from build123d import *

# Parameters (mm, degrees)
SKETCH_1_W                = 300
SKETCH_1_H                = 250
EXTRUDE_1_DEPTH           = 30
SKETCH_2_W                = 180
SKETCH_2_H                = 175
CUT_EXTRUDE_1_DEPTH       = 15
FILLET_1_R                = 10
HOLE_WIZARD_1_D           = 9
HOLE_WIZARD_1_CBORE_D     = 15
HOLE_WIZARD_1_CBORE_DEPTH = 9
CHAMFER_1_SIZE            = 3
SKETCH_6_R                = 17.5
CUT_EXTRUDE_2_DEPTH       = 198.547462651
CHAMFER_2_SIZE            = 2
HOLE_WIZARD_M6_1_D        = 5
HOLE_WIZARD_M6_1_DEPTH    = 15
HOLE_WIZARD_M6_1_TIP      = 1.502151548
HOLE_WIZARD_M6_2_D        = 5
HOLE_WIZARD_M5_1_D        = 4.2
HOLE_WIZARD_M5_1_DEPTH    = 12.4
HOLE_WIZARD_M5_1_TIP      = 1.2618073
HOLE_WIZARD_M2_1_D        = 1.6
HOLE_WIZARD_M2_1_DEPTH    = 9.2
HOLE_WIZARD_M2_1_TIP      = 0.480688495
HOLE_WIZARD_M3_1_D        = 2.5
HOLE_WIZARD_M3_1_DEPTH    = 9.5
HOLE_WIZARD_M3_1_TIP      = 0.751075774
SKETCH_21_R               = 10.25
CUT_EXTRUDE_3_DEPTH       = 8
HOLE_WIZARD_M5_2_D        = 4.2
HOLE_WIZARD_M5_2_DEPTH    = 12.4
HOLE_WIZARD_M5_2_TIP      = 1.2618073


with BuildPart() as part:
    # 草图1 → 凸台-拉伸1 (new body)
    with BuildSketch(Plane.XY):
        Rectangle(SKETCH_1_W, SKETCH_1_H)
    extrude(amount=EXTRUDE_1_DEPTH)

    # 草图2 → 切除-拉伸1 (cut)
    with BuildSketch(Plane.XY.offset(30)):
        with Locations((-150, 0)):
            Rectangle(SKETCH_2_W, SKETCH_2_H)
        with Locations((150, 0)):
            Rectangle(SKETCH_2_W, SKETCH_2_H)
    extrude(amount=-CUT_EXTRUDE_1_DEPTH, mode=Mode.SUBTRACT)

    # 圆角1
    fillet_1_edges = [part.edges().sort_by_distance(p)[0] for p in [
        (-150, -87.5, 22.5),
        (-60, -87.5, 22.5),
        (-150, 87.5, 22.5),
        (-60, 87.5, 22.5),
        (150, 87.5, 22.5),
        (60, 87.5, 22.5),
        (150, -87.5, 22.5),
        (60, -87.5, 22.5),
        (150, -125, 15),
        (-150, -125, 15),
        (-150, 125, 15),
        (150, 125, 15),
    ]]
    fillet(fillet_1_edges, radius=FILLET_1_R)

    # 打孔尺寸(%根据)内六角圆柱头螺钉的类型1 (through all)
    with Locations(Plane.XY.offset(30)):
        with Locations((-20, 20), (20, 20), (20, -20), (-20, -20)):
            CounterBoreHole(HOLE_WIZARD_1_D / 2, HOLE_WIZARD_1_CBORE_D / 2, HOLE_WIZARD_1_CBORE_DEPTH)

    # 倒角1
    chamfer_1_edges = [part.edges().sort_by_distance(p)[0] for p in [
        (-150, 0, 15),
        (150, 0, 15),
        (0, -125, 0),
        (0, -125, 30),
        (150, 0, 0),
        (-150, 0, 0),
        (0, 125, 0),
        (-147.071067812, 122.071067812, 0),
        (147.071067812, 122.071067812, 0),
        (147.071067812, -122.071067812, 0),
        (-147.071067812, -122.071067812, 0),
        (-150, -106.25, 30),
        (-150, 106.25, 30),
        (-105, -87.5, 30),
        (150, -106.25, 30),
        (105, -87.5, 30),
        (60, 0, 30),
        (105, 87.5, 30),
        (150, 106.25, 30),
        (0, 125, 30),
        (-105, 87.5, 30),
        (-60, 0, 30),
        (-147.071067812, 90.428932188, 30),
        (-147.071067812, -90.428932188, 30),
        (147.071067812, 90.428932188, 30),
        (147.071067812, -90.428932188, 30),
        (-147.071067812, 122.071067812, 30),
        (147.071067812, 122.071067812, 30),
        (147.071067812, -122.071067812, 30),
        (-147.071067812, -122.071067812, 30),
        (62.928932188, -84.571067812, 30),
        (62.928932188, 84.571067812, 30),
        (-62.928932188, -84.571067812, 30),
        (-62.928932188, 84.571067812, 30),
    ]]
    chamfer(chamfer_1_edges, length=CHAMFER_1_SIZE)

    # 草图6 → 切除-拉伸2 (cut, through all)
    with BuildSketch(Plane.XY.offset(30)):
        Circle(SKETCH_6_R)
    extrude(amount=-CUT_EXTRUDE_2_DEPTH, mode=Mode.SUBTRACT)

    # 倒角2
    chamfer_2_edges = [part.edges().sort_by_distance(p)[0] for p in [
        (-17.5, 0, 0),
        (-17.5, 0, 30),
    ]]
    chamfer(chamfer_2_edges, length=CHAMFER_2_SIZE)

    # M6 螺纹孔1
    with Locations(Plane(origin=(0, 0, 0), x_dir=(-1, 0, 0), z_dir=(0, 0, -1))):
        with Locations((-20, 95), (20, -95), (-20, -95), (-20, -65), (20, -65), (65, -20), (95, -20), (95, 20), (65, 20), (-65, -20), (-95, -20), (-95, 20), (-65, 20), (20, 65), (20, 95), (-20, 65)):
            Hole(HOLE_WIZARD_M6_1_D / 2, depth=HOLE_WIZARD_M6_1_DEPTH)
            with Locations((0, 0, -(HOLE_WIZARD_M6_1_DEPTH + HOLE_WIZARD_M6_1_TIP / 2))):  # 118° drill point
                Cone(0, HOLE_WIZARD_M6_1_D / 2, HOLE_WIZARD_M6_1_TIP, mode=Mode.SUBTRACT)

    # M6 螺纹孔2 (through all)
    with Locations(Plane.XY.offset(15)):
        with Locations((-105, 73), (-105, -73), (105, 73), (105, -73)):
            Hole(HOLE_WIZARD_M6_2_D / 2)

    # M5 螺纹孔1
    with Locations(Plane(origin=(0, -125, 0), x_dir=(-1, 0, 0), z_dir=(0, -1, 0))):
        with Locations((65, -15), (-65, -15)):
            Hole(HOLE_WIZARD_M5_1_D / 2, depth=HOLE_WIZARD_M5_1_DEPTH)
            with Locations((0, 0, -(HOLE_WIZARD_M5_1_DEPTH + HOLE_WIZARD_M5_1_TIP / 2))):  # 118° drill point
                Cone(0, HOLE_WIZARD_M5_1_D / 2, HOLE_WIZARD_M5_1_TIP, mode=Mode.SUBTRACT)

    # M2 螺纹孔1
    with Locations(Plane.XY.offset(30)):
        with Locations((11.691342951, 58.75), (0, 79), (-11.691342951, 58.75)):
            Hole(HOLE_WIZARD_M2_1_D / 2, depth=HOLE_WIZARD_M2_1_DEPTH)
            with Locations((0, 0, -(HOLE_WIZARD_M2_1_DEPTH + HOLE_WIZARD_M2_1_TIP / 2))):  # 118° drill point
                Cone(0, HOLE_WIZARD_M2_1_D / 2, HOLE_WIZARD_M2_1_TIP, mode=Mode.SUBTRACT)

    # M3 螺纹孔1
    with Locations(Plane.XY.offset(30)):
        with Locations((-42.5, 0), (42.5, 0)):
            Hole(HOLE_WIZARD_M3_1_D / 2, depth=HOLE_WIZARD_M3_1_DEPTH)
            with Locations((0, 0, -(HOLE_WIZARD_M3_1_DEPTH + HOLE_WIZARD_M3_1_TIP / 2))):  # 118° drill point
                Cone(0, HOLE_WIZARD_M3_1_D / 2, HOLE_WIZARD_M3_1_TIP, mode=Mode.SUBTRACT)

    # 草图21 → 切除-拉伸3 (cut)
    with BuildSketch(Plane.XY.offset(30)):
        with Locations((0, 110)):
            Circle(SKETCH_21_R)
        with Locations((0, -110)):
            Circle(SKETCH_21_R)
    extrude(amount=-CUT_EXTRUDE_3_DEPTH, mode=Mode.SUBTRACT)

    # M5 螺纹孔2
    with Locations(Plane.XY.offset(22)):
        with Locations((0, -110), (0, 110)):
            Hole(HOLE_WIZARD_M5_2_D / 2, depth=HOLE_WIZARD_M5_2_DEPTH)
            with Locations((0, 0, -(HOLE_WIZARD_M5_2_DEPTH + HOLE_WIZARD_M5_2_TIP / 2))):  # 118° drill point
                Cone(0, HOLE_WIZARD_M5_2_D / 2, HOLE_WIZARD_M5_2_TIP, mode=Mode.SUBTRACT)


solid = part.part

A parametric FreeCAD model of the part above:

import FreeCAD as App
import Part
import Sketcher
Q = App.Units.Quantity


def edges_at(feature, points):
    """Names of the edges that pass closest to the given points."""
    edges = feature.Shape.Edges
    near = lambda p: min(range(len(edges)), key=lambda i: edges[i].distToShape(Part.Vertex(*p))[0])
    return sorted({f"Edge{near(p) + 1}" for p in points})

doc = App.newDocument("Part")
params = doc.addObject("Spreadsheet::Sheet", "Params")
for row, (alias, value) in enumerate([
    ("sketch1_width", "300 mm"),
    ("sketch1_height", "250 mm"),
    ("pad1_length", "30 mm"),
    ("sketch2_width", "180 mm"),
    ("sketch2_height", "175 mm"),
    ("pocket1_length", "15 mm"),
    ("fillet_radius", "10 mm"),
    ("sketch3_diameter", "9 mm"),
    ("hole_diameter", "9 mm"),
    ("hole_cbore_diameter", "15 mm"),
    ("hole_cbore_depth", "9 mm"),
    ("chamfer_size", "3 mm"),
    ("sketch4_diameter", "35 mm"),
    ("chamfer2_size", "2 mm"),
    ("sketch5_diameter", "5 mm"),
    ("hole2_diameter", "5 mm"),
    ("hole2_depth", "15 mm"),
    ("sketch6_diameter", "5 mm"),
    ("hole3_diameter", "5 mm"),
    ("sketch7_diameter", "4.2 mm"),
    ("hole4_diameter", "4.2 mm"),
    ("hole4_depth", "12.4 mm"),
    ("sketch8_diameter", "1.6 mm"),
    ("hole5_diameter", "1.6 mm"),
    ("hole5_depth", "9.2 mm"),
    ("sketch9_diameter", "2.5 mm"),
    ("hole6_diameter", "2.5 mm"),
    ("hole6_depth", "9.5 mm"),
    ("sketch10_diameter", "20.5 mm"),
    ("pocket3_length", "8 mm"),
    ("sketch11_diameter", "4.2 mm"),
    ("hole7_diameter", "4.2 mm"),
    ("hole7_depth", "12.4 mm"),
], start=1):
    params.set(f"A{row}", alias)
    params.set(f"B{row}", "=" + value)
    params.setAlias(f"B{row}", alias)

body = doc.addObject("PartDesign::Body", "Body")

# Sketch on XY plane
sketch1 = body.newObject("Sketcher::SketchObject", "Sketch")
sketch1.AttachmentSupport = (doc.getObject("XY_Plane"), [""])
sketch1.MapMode = "FlatFace"
sketch1.addGeometry(Part.LineSegment(App.Vector(-150, 125, 0), App.Vector(-150, -125, 0)), False)
sketch1.addGeometry(Part.LineSegment(App.Vector(-150, -125, 0), App.Vector(150, -125, 0)), False)
sketch1.addGeometry(Part.LineSegment(App.Vector(150, -125, 0), App.Vector(150, 125, 0)), False)
sketch1.addGeometry(Part.LineSegment(App.Vector(150, 125, 0), App.Vector(-150, 125, 0)), False)
sketch1.addConstraint(Sketcher.Constraint("Coincident", 0, 2, 1, 1))
sketch1.addConstraint(Sketcher.Constraint("Coincident", 1, 2, 2, 1))
sketch1.addConstraint(Sketcher.Constraint("Coincident", 2, 2, 3, 1))
sketch1.addConstraint(Sketcher.Constraint("Coincident", 3, 2, 0, 1))
sketch1.addConstraint(Sketcher.Constraint("Vertical", 0))
sketch1.addConstraint(Sketcher.Constraint("Horizontal", 1))
sketch1.addConstraint(Sketcher.Constraint("Vertical", 2))
sketch1.addConstraint(Sketcher.Constraint("Horizontal", 3))
sketch1.addConstraint(Sketcher.Constraint("Symmetric", 0, 2, 2, 2, -1, 1))
sketch1.addConstraint(Sketcher.Constraint("DistanceX", 1, 1, 1, 2, Q("300 mm")))
sketch1.addConstraint(Sketcher.Constraint("DistanceY", 0, 2, 0, 1, Q("250 mm")))
sketch1.setExpression("Constraints[9]", "Params.sketch1_width")
sketch1.setExpression("Constraints[10]", "Params.sketch1_height")
pad1 = body.newObject("PartDesign::Pad", "Pad")
pad1.Profile = sketch1
pad1.setExpression("Length", "Params.pad1_length")

# Sketch on XY plane
sketch2 = body.newObject("Sketcher::SketchObject", "Sketch001")
sketch2.AttachmentSupport = (doc.getObject("XY_Plane"), [""])
sketch2.MapMode = "FlatFace"
sketch2.AttachmentOffset = App.Placement(App.Vector(0, 0, 30), App.Rotation())
sketch2.addGeometry(Part.LineSegment(App.Vector(-240, 88, 0), App.Vector(-240, -88, 0)), False)
sketch2.addGeometry(Part.LineSegment(App.Vector(-240, -88, 0), App.Vector(-60, -88, 0)), False)
sketch2.addGeometry(Part.LineSegment(App.Vector(-60, -88, 0), App.Vector(-60, 88, 0)), False)
sketch2.addGeometry(Part.LineSegment(App.Vector(-60, 88, 0), App.Vector(-240, 88, 0)), False)
sketch2.addGeometry(Part.LineSegment(App.Vector(60, 88, 0), App.Vector(60, -88, 0)), False)
sketch2.addGeometry(Part.LineSegment(App.Vector(60, -88, 0), App.Vector(240, -88, 0)), False)
sketch2.addGeometry(Part.LineSegment(App.Vector(240, -88, 0), App.Vector(240, 88, 0)), False)
sketch2.addGeometry(Part.LineSegment(App.Vector(240, 88, 0), App.Vector(60, 88, 0)), False)
sketch2.addConstraint(Sketcher.Constraint("Coincident", 0, 2, 1, 1))
sketch2.addConstraint(Sketcher.Constraint("Coincident", 1, 2, 2, 1))
sketch2.addConstraint(Sketcher.Constraint("Coincident", 2, 2, 3, 1))
sketch2.addConstraint(Sketcher.Constraint("Coincident", 3, 2, 0, 1))
sketch2.addConstraint(Sketcher.Constraint("Coincident", 4, 2, 5, 1))
sketch2.addConstraint(Sketcher.Constraint("Coincident", 5, 2, 6, 1))
sketch2.addConstraint(Sketcher.Constraint("Coincident", 6, 2, 7, 1))
sketch2.addConstraint(Sketcher.Constraint("Coincident", 7, 2, 4, 1))
sketch2.addConstraint(Sketcher.Constraint("Vertical", 0))
sketch2.addConstraint(Sketcher.Constraint("Horizontal", 1))
sketch2.addConstraint(Sketcher.Constraint("Vertical", 2))
sketch2.addConstraint(Sketcher.Constraint("Horizontal", 3))
sketch2.addConstraint(Sketcher.Constraint("Vertical", 4))
sketch2.addConstraint(Sketcher.Constraint("Horizontal", 5))
sketch2.addConstraint(Sketcher.Constraint("Vertical", 6))
sketch2.addConstraint(Sketcher.Constraint("Horizontal", 7))
sketch2.addConstraint(Sketcher.Constraint("Symmetric", 2, 2, 4, 2, -1, 1))
sketch2.addConstraint(Sketcher.Constraint("Symmetric", 0, 2, 6, 2, -1, 1))
sketch2.addConstraint(Sketcher.Constraint("Horizontal", 1, 2, 4, 2))
sketch2.addConstraint(Sketcher.Constraint("DistanceX", 1, 1, 1, 2, Q("180 mm")))
sketch2.addConstraint(Sketcher.Constraint("DistanceY", 0, 2, 0, 1, Q("175 mm")))
sketch2.addConstraint(Sketcher.Constraint("DistanceX", 0, 2, -1, 1, Q("240 mm")))
sketch2.setExpression("Constraints[19]", "Params.sketch2_width")
sketch2.setExpression("Constraints[20]", "Params.sketch2_height")
pocket1 = body.newObject("PartDesign::Pocket", "Pocket")
pocket1.Profile = sketch2
pocket1.setExpression("Length", "Params.pocket1_length")
doc.recompute()

fillet = body.newObject("PartDesign::Fillet", "Fillet")
fillet.Base = (pocket1, edges_at(pocket1, [
    (-150, -87.5, 22.5),
    (-60, -87.5, 22.5),
    (-150, 87.5, 22.5),
    (-60, 87.5, 22.5),
    (150, 87.5, 22.5),
    (60, 87.5, 22.5),
    (150, -87.5, 22.5),
    (60, -87.5, 22.5),
    (150, -125, 15),
    (-150, -125, 15),
    (-150, 125, 15),
    (150, 125, 15),
]))
fillet.setExpression("Radius", "Params.fillet_radius")

# Sketch on XY plane
sketch3 = body.newObject("Sketcher::SketchObject", "Sketch002")
sketch3.AttachmentSupport = (doc.getObject("XY_Plane"), [""])
sketch3.MapMode = "FlatFace"
sketch3.AttachmentOffset = App.Placement(App.Vector(0, 0, 30), App.Rotation())
sketch3.addGeometry(Part.Circle(App.Vector(-20, 20, 0), App.Vector(0, 0, 1), 4.5), False)
sketch3.addGeometry(Part.Circle(App.Vector(20, 20, 0), App.Vector(0, 0, 1), 4.5), False)
sketch3.addGeometry(Part.Circle(App.Vector(20, -20, 0), App.Vector(0, 0, 1), 4.5), False)
sketch3.addGeometry(Part.Circle(App.Vector(-20, -20, 0), App.Vector(0, 0, 1), 4.5), False)
sketch3.addConstraint(Sketcher.Constraint("Equal", 0, 1))
sketch3.addConstraint(Sketcher.Constraint("Equal", 1, 2))
sketch3.addConstraint(Sketcher.Constraint("Equal", 2, 3))
sketch3.addConstraint(Sketcher.Constraint("Symmetric", 0, 3, 2, 3, -1, 1))
sketch3.addConstraint(Sketcher.Constraint("Symmetric", 1, 3, 3, 3, -1, 1))
sketch3.addConstraint(Sketcher.Constraint("Symmetric", 0, 3, 1, 3, -2))
sketch3.addConstraint(Sketcher.Constraint("Diameter", 0, Q("9 mm")))
sketch3.addConstraint(Sketcher.Constraint("DistanceX", 0, 3, -1, 1, Q("20 mm")))
sketch3.addConstraint(Sketcher.Constraint("DistanceY", -1, 1, 0, 3, Q("20 mm")))
sketch3.setExpression("Constraints[6]", "Params.sketch3_diameter")
doc.recompute()
hole = body.newObject("PartDesign::Hole", "Hole")
hole.Profile = sketch3
hole.ThreadType = "None"
hole.setExpression("Diameter", "Params.hole_diameter")
hole.DepthType = "ThroughAll"
hole.HoleCutType = "Counterbore"
hole.setExpression("HoleCutDiameter", "Params.hole_cbore_diameter")
hole.setExpression("HoleCutDepth", "Params.hole_cbore_depth")
doc.recompute()

chamfer = body.newObject("PartDesign::Chamfer", "Chamfer")
chamfer.Base = (hole, edges_at(hole, [
    (-150, 0, 15),
    (150, 0, 15),
    (0, -125, 0),
    (0, -125, 30),
    (150, 0, 0),
    (-150, 0, 0),
    (0, 125, 0),
    (-147.071, 122.071, 0),
    (147.071, 122.071, 0),
    (147.071, -122.071, 0),
    (-147.071, -122.071, 0),
    (-150, -106.25, 30),
    (-150, 106.25, 30),
    (-105, -87.5, 30),
    (150, -106.25, 30),
    (105, -87.5, 30),
    (60, 0, 30),
    (105, 87.5, 30),
    (150, 106.25, 30),
    (0, 125, 30),
    (-105, 87.5, 30),
    (-60, 0, 30),
    (-147.071, 90.429, 30),
    (-147.071, -90.429, 30),
    (147.071, 90.429, 30),
    (147.071, -90.429, 30),
    (-147.071, 122.071, 30),
    (147.071, 122.071, 30),
    (147.071, -122.071, 30),
    (-147.071, -122.071, 30),
    (62.929, -84.571, 30),
    (62.929, 84.571, 30),
    (-62.929, -84.571, 30),
    (-62.929, 84.571, 30),
]))
chamfer.setExpression("Size", "Params.chamfer_size")

# Sketch on XY plane
sketch4 = body.newObject("Sketcher::SketchObject", "Sketch003")
sketch4.AttachmentSupport = (doc.getObject("XY_Plane"), [""])
sketch4.MapMode = "FlatFace"
sketch4.AttachmentOffset = App.Placement(App.Vector(0, 0, 30), App.Rotation())
sketch4.addGeometry(Part.Circle(App.Vector(0, 0, 0), App.Vector(0, 0, 1), 18), False)
sketch4.addConstraint(Sketcher.Constraint("Coincident", 0, 3, -1, 1))
sketch4.addConstraint(Sketcher.Constraint("Diameter", 0, Q("35 mm")))
sketch4.setExpression("Constraints[1]", "Params.sketch4_diameter")
pocket2 = body.newObject("PartDesign::Pocket", "Pocket001")
pocket2.Profile = sketch4
pocket2.Type = "ThroughAll"
doc.recompute()

chamfer2 = body.newObject("PartDesign::Chamfer", "Chamfer001")
chamfer2.Base = (pocket2, edges_at(pocket2, [(-17.5, 0, 0), (-17.5, 0, 30)]))
chamfer2.setExpression("Size", "Params.chamfer2_size")

# Sketch on XY plane
sketch5 = body.newObject("Sketcher::SketchObject", "Sketch004")
sketch5.AttachmentSupport = (doc.getObject("XY_Plane"), [""])
sketch5.MapMode = "FlatFace"
sketch5.addGeometry(Part.Circle(App.Vector(20, 95, 0), App.Vector(0, 0, 1), 2.5), False)
sketch5.addGeometry(Part.Circle(App.Vector(-20, -95, 0), App.Vector(0, 0, 1), 2.5), False)
sketch5.addGeometry(Part.Circle(App.Vector(20, -95, 0), App.Vector(0, 0, 1), 2.5), False)
sketch5.addGeometry(Part.Circle(App.Vector(20, -65, 0), App.Vector(0, 0, 1), 2.5), False)
sketch5.addGeometry(Part.Circle(App.Vector(-20, -65, 0), App.Vector(0, 0, 1), 2.5), False)
sketch5.addGeometry(Part.Circle(App.Vector(-65, -20, 0), App.Vector(0, 0, 1), 2.5), False)
sketch5.addGeometry(Part.Circle(App.Vector(-95, -20, 0), App.Vector(0, 0, 1), 2.5), False)
sketch5.addGeometry(Part.Circle(App.Vector(-95, 20, 0), App.Vector(0, 0, 1), 2.5), False)
sketch5.addGeometry(Part.Circle(App.Vector(-65, 20, 0), App.Vector(0, 0, 1), 2.5), False)
sketch5.addGeometry(Part.Circle(App.Vector(65, -20, 0), App.Vector(0, 0, 1), 2.5), False)
sketch5.addGeometry(Part.Circle(App.Vector(95, -20, 0), App.Vector(0, 0, 1), 2.5), False)
sketch5.addGeometry(Part.Circle(App.Vector(95, 20, 0), App.Vector(0, 0, 1), 2.5), False)
sketch5.addGeometry(Part.Circle(App.Vector(65, 20, 0), App.Vector(0, 0, 1), 2.5), False)
sketch5.addGeometry(Part.Circle(App.Vector(-20, 65, 0), App.Vector(0, 0, 1), 2.5), False)
sketch5.addGeometry(Part.Circle(App.Vector(-20, 95, 0), App.Vector(0, 0, 1), 2.5), False)
sketch5.addGeometry(Part.Circle(App.Vector(20, 65, 0), App.Vector(0, 0, 1), 2.5), False)
sketch5.addConstraint(Sketcher.Constraint("Equal", 0, 1))
sketch5.addConstraint(Sketcher.Constraint("Equal", 1, 2))
sketch5.addConstraint(Sketcher.Constraint("Equal", 2, 3))
sketch5.addConstraint(Sketcher.Constraint("Equal", 3, 4))
sketch5.addConstraint(Sketcher.Constraint("Equal", 4, 5))
sketch5.addConstraint(Sketcher.Constraint("Equal", 5, 6))
sketch5.addConstraint(Sketcher.Constraint("Equal", 6, 7))
sketch5.addConstraint(Sketcher.Constraint("Equal", 7, 8))
sketch5.addConstraint(Sketcher.Constraint("Equal", 8, 9))
sketch5.addConstraint(Sketcher.Constraint("Equal", 9, 10))
sketch5.addConstraint(Sketcher.Constraint("Equal", 10, 11))
sketch5.addConstraint(Sketcher.Constraint("Equal", 11, 12))
sketch5.addConstraint(Sketcher.Constraint("Equal", 12, 13))
sketch5.addConstraint(Sketcher.Constraint("Equal", 13, 14))
sketch5.addConstraint(Sketcher.Constraint("Equal", 14, 15))
sketch5.addConstraint(Sketcher.Constraint("Symmetric", 0, 3, 1, 3, -1, 1))
sketch5.addConstraint(Sketcher.Constraint("Symmetric", 8, 3, 9, 3, -1, 1))
sketch5.addConstraint(Sketcher.Constraint("Symmetric", 7, 3, 10, 3, -1, 1))
sketch5.addConstraint(Sketcher.Constraint("Symmetric", 6, 3, 11, 3, -1, 1))
sketch5.addConstraint(Sketcher.Constraint("Symmetric", 5, 3, 12, 3, -1, 1))
sketch5.addConstraint(Sketcher.Constraint("Symmetric", 3, 3, 13, 3, -1, 1))
sketch5.addConstraint(Sketcher.Constraint("Symmetric", 2, 3, 14, 3, -1, 1))
sketch5.addConstraint(Sketcher.Constraint("Symmetric", 4, 3, 15, 3, -1, 1))
sketch5.addConstraint(Sketcher.Constraint("Symmetric", 1, 3, 2, 3, -2))
sketch5.addConstraint(Sketcher.Constraint("Symmetric", 3, 3, 4, 3, -2))
sketch5.addConstraint(Sketcher.Constraint("Symmetric", 5, 3, 9, 3, -2))
sketch5.addConstraint(Sketcher.Constraint("Symmetric", 6, 3, 10, 3, -2))
sketch5.addConstraint(Sketcher.Constraint("Horizontal", 5, 3, 6, 3))
sketch5.addConstraint(Sketcher.Constraint("Vertical", 2, 3, 3, 3))
sketch5.addConstraint(Sketcher.Constraint("Diameter", 0, Q("5 mm")))
sketch5.addConstraint(Sketcher.Constraint("DistanceX", -1, 1, 0, 3, Q("20 mm")))
sketch5.addConstraint(Sketcher.Constraint("DistanceY", -1, 1, 0, 3, Q("95 mm")))
sketch5.addConstraint(Sketcher.Constraint("DistanceY", 3, 3, -1, 1, Q("65 mm")))
sketch5.addConstraint(Sketcher.Constraint("DistanceX", 5, 3, -1, 1, Q("65 mm")))
sketch5.addConstraint(Sketcher.Constraint("DistanceY", 5, 3, -1, 1, Q("20 mm")))
sketch5.addConstraint(Sketcher.Constraint("DistanceX", 6, 3, -1, 1, Q("95 mm")))
sketch5.setExpression("Constraints[29]", "Params.sketch5_diameter")
doc.recompute()
hole2 = body.newObject("PartDesign::Hole", "Hole001")
hole2.Profile = sketch5
hole2.ThreadType = "None"
hole2.setExpression("Diameter", "Params.hole2_diameter")
hole2.DepthType = "Dimension"
hole2.setExpression("Depth", "Params.hole2_depth")
hole2.DrillPoint = "Angled"
hole2.DrillPointAngle = 118
hole2.Reversed = True

# Sketch on XY plane
sketch6 = body.newObject("Sketcher::SketchObject", "Sketch005")
sketch6.AttachmentSupport = (doc.getObject("XY_Plane"), [""])
sketch6.MapMode = "FlatFace"
sketch6.AttachmentOffset = App.Placement(App.Vector(0, 0, 15), App.Rotation())
sketch6.addGeometry(Part.Circle(App.Vector(-105, 73, 0), App.Vector(0, 0, 1), 2.5), False)
sketch6.addGeometry(Part.Circle(App.Vector(-105, -73, 0), App.Vector(0, 0, 1), 2.5), False)
sketch6.addGeometry(Part.Circle(App.Vector(105, 73, 0), App.Vector(0, 0, 1), 2.5), False)
sketch6.addGeometry(Part.Circle(App.Vector(105, -73, 0), App.Vector(0, 0, 1), 2.5), False)
sketch6.addConstraint(Sketcher.Constraint("Equal", 0, 1))
sketch6.addConstraint(Sketcher.Constraint("Equal", 1, 2))
sketch6.addConstraint(Sketcher.Constraint("Equal", 2, 3))
sketch6.addConstraint(Sketcher.Constraint("Symmetric", 1, 3, 2, 3, -1, 1))
sketch6.addConstraint(Sketcher.Constraint("Symmetric", 0, 3, 3, 3, -1, 1))
sketch6.addConstraint(Sketcher.Constraint("Symmetric", 0, 3, 2, 3, -2))
sketch6.addConstraint(Sketcher.Constraint("Diameter", 0, Q("5 mm")))
sketch6.addConstraint(Sketcher.Constraint("DistanceX", 0, 3, -1, 1, Q("105 mm")))
sketch6.addConstraint(Sketcher.Constraint("DistanceY", -1, 1, 0, 3, Q("73 mm")))
sketch6.setExpression("Constraints[6]", "Params.sketch6_diameter")
doc.recompute()
hole3 = body.newObject("PartDesign::Hole", "Hole002")
hole3.Profile = sketch6
hole3.ThreadType = "None"
hole3.setExpression("Diameter", "Params.hole3_diameter")
hole3.DepthType = "ThroughAll"

# Sketch on XZ plane
sketch7 = body.newObject("Sketcher::SketchObject", "Sketch006")
sketch7.AttachmentSupport = (doc.getObject("XZ_Plane"), [""])
sketch7.MapMode = "FlatFace"
sketch7.AttachmentOffset = App.Placement(App.Vector(0, 0, 125), App.Rotation())
sketch7.addGeometry(Part.Circle(App.Vector(-65, 15, 0), App.Vector(0, 0, 1), 2.1), False)
sketch7.addGeometry(Part.Circle(App.Vector(65, 15, 0), App.Vector(0, 0, 1), 2.1), False)
sketch7.addConstraint(Sketcher.Constraint("Equal", 0, 1))
sketch7.addConstraint(Sketcher.Constraint("Symmetric", 0, 3, 1, 3, -2))
sketch7.addConstraint(Sketcher.Constraint("Diameter", 0, Q("4.2 mm")))
sketch7.addConstraint(Sketcher.Constraint("DistanceX", 0, 3, -1, 1, Q("65 mm")))
sketch7.addConstraint(Sketcher.Constraint("DistanceY", -1, 1, 0, 3, Q("15 mm")))
sketch7.setExpression("Constraints[2]", "Params.sketch7_diameter")
doc.recompute()
hole4 = body.newObject("PartDesign::Hole", "Hole003")
hole4.Profile = sketch7
hole4.ThreadType = "None"
hole4.setExpression("Diameter", "Params.hole4_diameter")
hole4.DepthType = "Dimension"
hole4.setExpression("Depth", "Params.hole4_depth")
hole4.DrillPoint = "Angled"
hole4.DrillPointAngle = 118

# Sketch on XY plane
sketch8 = body.newObject("Sketcher::SketchObject", "Sketch007")
sketch8.AttachmentSupport = (doc.getObject("XY_Plane"), [""])
sketch8.MapMode = "FlatFace"
sketch8.AttachmentOffset = App.Placement(App.Vector(0, 0, 30), App.Rotation())
sketch8.addGeometry(Part.Circle(App.Vector(11.7, 58.8, 0), App.Vector(0, 0, 1), 0.8), False)
sketch8.addGeometry(Part.Circle(App.Vector(0, 79, 0), App.Vector(0, 0, 1), 0.8), False)
sketch8.addGeometry(Part.Circle(App.Vector(-11.7, 58.8, 0), App.Vector(0, 0, 1), 0.8), False)
sketch8.addConstraint(Sketcher.Constraint("Equal", 0, 1))
sketch8.addConstraint(Sketcher.Constraint("Equal", 1, 2))
sketch8.addConstraint(Sketcher.Constraint("Symmetric", 0, 3, 2, 3, -2))
sketch8.addConstraint(Sketcher.Constraint("PointOnObject", 1, 3, -2))
sketch8.addConstraint(Sketcher.Constraint("Diameter", 0, Q("1.6 mm")))
sketch8.addConstraint(Sketcher.Constraint("DistanceY", -1, 1, 1, 3, Q("79 mm")))
sketch8.addConstraint(Sketcher.Constraint("DistanceY", -1, 1, 0, 3, Q("58.75 mm")))
sketch8.addConstraint(Sketcher.Constraint("DistanceX", -1, 1, 0, 3, Q("11.691343 mm")))
sketch8.setExpression("Constraints[4]", "Params.sketch8_diameter")
doc.recompute()
hole5 = body.newObject("PartDesign::Hole", "Hole004")
hole5.Profile = sketch8
hole5.ThreadType = "None"
hole5.setExpression("Diameter", "Params.hole5_diameter")
hole5.DepthType = "Dimension"
hole5.setExpression("Depth", "Params.hole5_depth")
hole5.DrillPoint = "Angled"
hole5.DrillPointAngle = 118

# Sketch on XY plane
sketch9 = body.newObject("Sketcher::SketchObject", "Sketch008")
sketch9.AttachmentSupport = (doc.getObject("XY_Plane"), [""])
sketch9.MapMode = "FlatFace"
sketch9.AttachmentOffset = App.Placement(App.Vector(0, 0, 30), App.Rotation())
sketch9.addGeometry(Part.Circle(App.Vector(-42.5, 0, 0), App.Vector(0, 0, 1), 1.2), False)
sketch9.addGeometry(Part.Circle(App.Vector(42.5, 0, 0), App.Vector(0, 0, 1), 1.2), False)
sketch9.addConstraint(Sketcher.Constraint("Equal", 0, 1))
sketch9.addConstraint(Sketcher.Constraint("Symmetric", 0, 3, 1, 3, -1, 1))
sketch9.addConstraint(Sketcher.Constraint("PointOnObject", 0, 3, -1))
sketch9.addConstraint(Sketcher.Constraint("Diameter", 0, Q("2.5 mm")))
sketch9.addConstraint(Sketcher.Constraint("DistanceX", 0, 3, 1, 3, Q("85 mm")))
sketch9.setExpression("Constraints[3]", "Params.sketch9_diameter")
doc.recompute()
hole6 = body.newObject("PartDesign::Hole", "Hole005")
hole6.Profile = sketch9
hole6.ThreadType = "None"
hole6.setExpression("Diameter", "Params.hole6_diameter")
hole6.DepthType = "Dimension"
hole6.setExpression("Depth", "Params.hole6_depth")
hole6.DrillPoint = "Angled"
hole6.DrillPointAngle = 118

# Sketch on XY plane
sketch10 = body.newObject("Sketcher::SketchObject", "Sketch009")
sketch10.AttachmentSupport = (doc.getObject("XY_Plane"), [""])
sketch10.MapMode = "FlatFace"
sketch10.AttachmentOffset = App.Placement(App.Vector(0, 0, 30), App.Rotation())
sketch10.addGeometry(Part.Circle(App.Vector(0, 110, 0), App.Vector(0, 0, 1), 10), False)
sketch10.addGeometry(Part.Circle(App.Vector(0, -110, 0), App.Vector(0, 0, 1), 10), False)
sketch10.addConstraint(Sketcher.Constraint("Equal", 0, 1))
sketch10.addConstraint(Sketcher.Constraint("Symmetric", 0, 3, 1, 3, -1, 1))
sketch10.addConstraint(Sketcher.Constraint("PointOnObject", 0, 3, -2))
sketch10.addConstraint(Sketcher.Constraint("Diameter", 0, Q("20.5 mm")))
sketch10.addConstraint(Sketcher.Constraint("DistanceY", -1, 1, 0, 3, Q("110 mm")))
sketch10.setExpression("Constraints[3]", "Params.sketch10_diameter")
pocket3 = body.newObject("PartDesign::Pocket", "Pocket002")
pocket3.Profile = sketch10
pocket3.setExpression("Length", "Params.pocket3_length")

# Sketch on XY plane
sketch11 = body.newObject("Sketcher::SketchObject", "Sketch010")
sketch11.AttachmentSupport = (doc.getObject("XY_Plane"), [""])
sketch11.MapMode = "FlatFace"
sketch11.AttachmentOffset = App.Placement(App.Vector(0, 0, 22), App.Rotation())
sketch11.addGeometry(Part.Circle(App.Vector(0, -110, 0), App.Vector(0, 0, 1), 2.1), False)
sketch11.addGeometry(Part.Circle(App.Vector(0, 110, 0), App.Vector(0, 0, 1), 2.1), False)
sketch11.addConstraint(Sketcher.Constraint("Equal", 0, 1))
sketch11.addConstraint(Sketcher.Constraint("Symmetric", 0, 3, 1, 3, -1, 1))
sketch11.addConstraint(Sketcher.Constraint("PointOnObject", 0, 3, -2))
sketch11.addConstraint(Sketcher.Constraint("Diameter", 0, Q("4.2 mm")))
sketch11.addConstraint(Sketcher.Constraint("DistanceY", 0, 3, -1, 1, Q("110 mm")))
sketch11.setExpression("Constraints[3]", "Params.sketch11_diameter")
doc.recompute()
hole7 = body.newObject("PartDesign::Hole", "Hole006")
hole7.Profile = sketch11
hole7.ThreadType = "None"
hole7.setExpression("Diameter", "Params.hole7_diameter")
hole7.DepthType = "Dimension"
hole7.setExpression("Depth", "Params.hole7_depth")
hole7.DrillPoint = "Angled"
hole7.DrillPointAngle = 118

doc.recompute()
